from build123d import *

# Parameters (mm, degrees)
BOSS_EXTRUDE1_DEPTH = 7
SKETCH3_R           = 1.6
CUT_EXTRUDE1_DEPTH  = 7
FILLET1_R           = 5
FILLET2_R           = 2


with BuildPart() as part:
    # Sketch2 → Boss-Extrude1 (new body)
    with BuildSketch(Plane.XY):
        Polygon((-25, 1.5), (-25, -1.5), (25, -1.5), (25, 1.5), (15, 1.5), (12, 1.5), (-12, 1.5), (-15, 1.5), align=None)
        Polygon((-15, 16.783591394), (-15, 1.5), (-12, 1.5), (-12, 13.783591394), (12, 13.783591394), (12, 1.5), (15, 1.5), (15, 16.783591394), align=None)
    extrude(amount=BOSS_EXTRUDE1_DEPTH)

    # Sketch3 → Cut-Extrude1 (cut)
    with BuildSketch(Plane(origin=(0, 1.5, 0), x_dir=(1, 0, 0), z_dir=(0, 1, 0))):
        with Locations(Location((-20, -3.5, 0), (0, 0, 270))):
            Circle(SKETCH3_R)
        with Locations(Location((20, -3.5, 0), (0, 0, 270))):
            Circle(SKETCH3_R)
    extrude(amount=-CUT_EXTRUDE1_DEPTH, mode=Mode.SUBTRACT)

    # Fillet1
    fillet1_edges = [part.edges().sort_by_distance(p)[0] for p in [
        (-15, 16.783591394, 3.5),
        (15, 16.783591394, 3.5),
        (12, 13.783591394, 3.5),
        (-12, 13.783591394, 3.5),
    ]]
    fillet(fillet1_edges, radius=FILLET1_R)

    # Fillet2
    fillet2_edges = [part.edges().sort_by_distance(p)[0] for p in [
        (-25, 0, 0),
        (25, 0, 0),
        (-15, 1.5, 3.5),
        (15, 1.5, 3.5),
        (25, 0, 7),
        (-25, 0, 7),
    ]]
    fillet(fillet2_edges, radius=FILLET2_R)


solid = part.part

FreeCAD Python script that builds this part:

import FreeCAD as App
import Part
import Sketcher

V = App.Vector
Q = App.Units.Quantity


def edges_at(feature, points):
    """Names of the edges that pass closest to the given points."""
    edges = feature.Shape.Edges
    near = lambda p: min(range(len(edges)), key=lambda i: edges[i].distToShape(Part.Vertex(*p))[0])
    return sorted({f"Edge{near(p) + 1}" for p in points})

doc = App.newDocument("Part")
body = doc.addObject("PartDesign::Body", "Body")

sketch1 = body.newObject("Sketcher::SketchObject", "Sketch")
sketch1.AttachmentSupport = (doc.getObject("XY_Plane"), [""])
sketch1.MapMode = "FlatFace"
sketch1.addGeometry([
    Part.LineSegment(V(-25, 1.5, 0), V(-25, -1.5, 0)),
    Part.LineSegment(V(-25, -1.5, 0), V(25, -1.5, 0)),
    Part.LineSegment(V(25, -1.5, 0), V(25, 1.5, 0)),
    Part.LineSegment(V(25, 1.5, 0), V(15, 1.5, 0)),
    Part.LineSegment(V(15, 1.5, 0), V(15, 16.8, 0)),
    Part.LineSegment(V(15, 16.8, 0), V(-15, 16.8, 0)),
    Part.LineSegment(V(-15, 16.8, 0), V(-15, 1.5, 0)),
    Part.LineSegment(V(-15, 1.5, 0), V(-25, 1.5, 0)),
    Part.LineSegment(V(12, 1.5, 0), V(-12, 1.5, 0)),
    Part.LineSegment(V(-12, 1.5, 0), V(-12, 13.8, 0)),
    Part.LineSegment(V(-12, 13.8, 0), V(12, 13.8, 0)),
    Part.LineSegment(V(12, 13.8, 0), V(12, 1.5, 0)),
], False)
sketch1.addConstraint([
    Sketcher.Constraint("Coincident", 0, 2, 1, 1),
    Sketcher.Constraint("Coincident", 1, 2, 2, 1),
    Sketcher.Constraint("Coincident", 2, 2, 3, 1),
    Sketcher.Constraint("Coincident", 3, 2, 4, 1),
    Sketcher.Constraint("Coincident", 4, 2, 5, 1),
    Sketcher.Constraint("Coincident", 5, 2, 6, 1),
    Sketcher.Constraint("Coincident", 6, 2, 7, 1),
    Sketcher.Constraint("Coincident", 7, 2, 0, 1),
    Sketcher.Constraint("Coincident", 8, 2, 9, 1),
    Sketcher.Constraint("Coincident", 9, 2, 10, 1),
    Sketcher.Constraint("Coincident", 10, 2, 11, 1),
    Sketcher.Constraint("Coincident", 11, 2, 8, 1),
    Sketcher.Constraint("Vertical", 0),
    Sketcher.Constraint("Horizontal", 1),
    Sketcher.Constraint("Vertical", 2),
    Sketcher.Constraint("Horizontal", 3),
    Sketcher.Constraint("Vertical", 4),
    Sketcher.Constraint("Horizontal", 5),
    Sketcher.Constraint("Vertical", 6),
    Sketcher.Constraint("Horizontal", 7),
    Sketcher.Constraint("Horizontal", 8),
    Sketcher.Constraint("Vertical", 9),
    Sketcher.Constraint("Horizontal", 10),
    Sketcher.Constraint("Vertical", 11),
    Sketcher.Constraint("Symmetric", 0, 2, 2, 2, -1, 1),
    Sketcher.Constraint("Symmetric", 3, 2, 6, 2, -2),
    Sketcher.Constraint("Horizontal", 7, 2, 8, 2),
    Sketcher.Constraint("DistanceX", 1, 1, 1, 2, Q("50 mm")),
    Sketcher.Constraint("DistanceX", 3, 2, 3, 1, Q("10 mm")),
    Sketcher.Constraint("DistanceX", 8, 2, 8, 1, Q("24 mm")),
    Sketcher.Constraint("DistanceY", 0, 2, 0, 1, Q("3 mm")),
    Sketcher.Constraint("DistanceX", 8, 2, -1, 1, Q("12 mm")),
    Sketcher.Constraint("DistanceY", 9, 2, 5, 2, Q("3 mm")),
    Sketcher.Constraint("DistanceY", 4, 1, 4, 2, Q("15.283591 mm")),
])
pad1 = body.newObject("PartDesign::Pad", "Pad")
pad1.Profile = sketch1
pad1.Length = 7

sketch2 = body.newObject("Sketcher::SketchObject", "Sketch001")
sketch2.AttachmentSupport = (doc.getObject("XZ_Plane"), [""])
sketch2.MapMode = "FlatFace"
sketch2.AttachmentOffset = App.Placement(V(0, 0, -1.5), App.Rotation())
sketch2.addGeometry([
    Part.Circle(V(-20, 3.5, 0), V(0, 0, 1), 1.6),
    Part.Circle(V(20, 3.5, 0), V(0, 0, 1), 1.6),
], False)
sketch2.addConstraint([
    Sketcher.Constraint("Equal", 0, 1),
    Sketcher.Constraint("Symmetric", 0, 3, 1, 3, -2),
    Sketcher.Constraint("Diameter", 0, Q("3.2 mm")),
    Sketcher.Constraint("DistanceX", 0, 3, -1, 1, Q("20 mm")),
    Sketcher.Constraint("DistanceY", -1, 1, 0, 3, Q("3.5 mm")),
])
pocket1 = body.newObject("PartDesign::Pocket", "Pocket")
pocket1.Profile = sketch2
pocket1.Length = 7
pocket1.Reversed = True
doc.recompute()

fillet = body.newObject("PartDesign::Fillet", "Fillet")
fillet.Base = (pocket1, edges_at(pocket1, [
    (-15, 16.784, 3.5),
    (15, 16.784, 3.5),
    (12, 13.784, 3.5),
    (-12, 13.784, 3.5),
]))
fillet.Radius = 5
doc.recompute()

fillet2 = body.newObject("PartDesign::Fillet", "Fillet001")
fillet2.Base = (fillet, edges_at(fillet, [
    (-25, 0, 0),
    (25, 0, 0),
    (-15, 1.5, 3.5),
    (15, 1.5, 3.5),
    (25, 0, 7),
    (-25, 0, 7),
]))
fillet2.Radius = 2

doc.recompute()
